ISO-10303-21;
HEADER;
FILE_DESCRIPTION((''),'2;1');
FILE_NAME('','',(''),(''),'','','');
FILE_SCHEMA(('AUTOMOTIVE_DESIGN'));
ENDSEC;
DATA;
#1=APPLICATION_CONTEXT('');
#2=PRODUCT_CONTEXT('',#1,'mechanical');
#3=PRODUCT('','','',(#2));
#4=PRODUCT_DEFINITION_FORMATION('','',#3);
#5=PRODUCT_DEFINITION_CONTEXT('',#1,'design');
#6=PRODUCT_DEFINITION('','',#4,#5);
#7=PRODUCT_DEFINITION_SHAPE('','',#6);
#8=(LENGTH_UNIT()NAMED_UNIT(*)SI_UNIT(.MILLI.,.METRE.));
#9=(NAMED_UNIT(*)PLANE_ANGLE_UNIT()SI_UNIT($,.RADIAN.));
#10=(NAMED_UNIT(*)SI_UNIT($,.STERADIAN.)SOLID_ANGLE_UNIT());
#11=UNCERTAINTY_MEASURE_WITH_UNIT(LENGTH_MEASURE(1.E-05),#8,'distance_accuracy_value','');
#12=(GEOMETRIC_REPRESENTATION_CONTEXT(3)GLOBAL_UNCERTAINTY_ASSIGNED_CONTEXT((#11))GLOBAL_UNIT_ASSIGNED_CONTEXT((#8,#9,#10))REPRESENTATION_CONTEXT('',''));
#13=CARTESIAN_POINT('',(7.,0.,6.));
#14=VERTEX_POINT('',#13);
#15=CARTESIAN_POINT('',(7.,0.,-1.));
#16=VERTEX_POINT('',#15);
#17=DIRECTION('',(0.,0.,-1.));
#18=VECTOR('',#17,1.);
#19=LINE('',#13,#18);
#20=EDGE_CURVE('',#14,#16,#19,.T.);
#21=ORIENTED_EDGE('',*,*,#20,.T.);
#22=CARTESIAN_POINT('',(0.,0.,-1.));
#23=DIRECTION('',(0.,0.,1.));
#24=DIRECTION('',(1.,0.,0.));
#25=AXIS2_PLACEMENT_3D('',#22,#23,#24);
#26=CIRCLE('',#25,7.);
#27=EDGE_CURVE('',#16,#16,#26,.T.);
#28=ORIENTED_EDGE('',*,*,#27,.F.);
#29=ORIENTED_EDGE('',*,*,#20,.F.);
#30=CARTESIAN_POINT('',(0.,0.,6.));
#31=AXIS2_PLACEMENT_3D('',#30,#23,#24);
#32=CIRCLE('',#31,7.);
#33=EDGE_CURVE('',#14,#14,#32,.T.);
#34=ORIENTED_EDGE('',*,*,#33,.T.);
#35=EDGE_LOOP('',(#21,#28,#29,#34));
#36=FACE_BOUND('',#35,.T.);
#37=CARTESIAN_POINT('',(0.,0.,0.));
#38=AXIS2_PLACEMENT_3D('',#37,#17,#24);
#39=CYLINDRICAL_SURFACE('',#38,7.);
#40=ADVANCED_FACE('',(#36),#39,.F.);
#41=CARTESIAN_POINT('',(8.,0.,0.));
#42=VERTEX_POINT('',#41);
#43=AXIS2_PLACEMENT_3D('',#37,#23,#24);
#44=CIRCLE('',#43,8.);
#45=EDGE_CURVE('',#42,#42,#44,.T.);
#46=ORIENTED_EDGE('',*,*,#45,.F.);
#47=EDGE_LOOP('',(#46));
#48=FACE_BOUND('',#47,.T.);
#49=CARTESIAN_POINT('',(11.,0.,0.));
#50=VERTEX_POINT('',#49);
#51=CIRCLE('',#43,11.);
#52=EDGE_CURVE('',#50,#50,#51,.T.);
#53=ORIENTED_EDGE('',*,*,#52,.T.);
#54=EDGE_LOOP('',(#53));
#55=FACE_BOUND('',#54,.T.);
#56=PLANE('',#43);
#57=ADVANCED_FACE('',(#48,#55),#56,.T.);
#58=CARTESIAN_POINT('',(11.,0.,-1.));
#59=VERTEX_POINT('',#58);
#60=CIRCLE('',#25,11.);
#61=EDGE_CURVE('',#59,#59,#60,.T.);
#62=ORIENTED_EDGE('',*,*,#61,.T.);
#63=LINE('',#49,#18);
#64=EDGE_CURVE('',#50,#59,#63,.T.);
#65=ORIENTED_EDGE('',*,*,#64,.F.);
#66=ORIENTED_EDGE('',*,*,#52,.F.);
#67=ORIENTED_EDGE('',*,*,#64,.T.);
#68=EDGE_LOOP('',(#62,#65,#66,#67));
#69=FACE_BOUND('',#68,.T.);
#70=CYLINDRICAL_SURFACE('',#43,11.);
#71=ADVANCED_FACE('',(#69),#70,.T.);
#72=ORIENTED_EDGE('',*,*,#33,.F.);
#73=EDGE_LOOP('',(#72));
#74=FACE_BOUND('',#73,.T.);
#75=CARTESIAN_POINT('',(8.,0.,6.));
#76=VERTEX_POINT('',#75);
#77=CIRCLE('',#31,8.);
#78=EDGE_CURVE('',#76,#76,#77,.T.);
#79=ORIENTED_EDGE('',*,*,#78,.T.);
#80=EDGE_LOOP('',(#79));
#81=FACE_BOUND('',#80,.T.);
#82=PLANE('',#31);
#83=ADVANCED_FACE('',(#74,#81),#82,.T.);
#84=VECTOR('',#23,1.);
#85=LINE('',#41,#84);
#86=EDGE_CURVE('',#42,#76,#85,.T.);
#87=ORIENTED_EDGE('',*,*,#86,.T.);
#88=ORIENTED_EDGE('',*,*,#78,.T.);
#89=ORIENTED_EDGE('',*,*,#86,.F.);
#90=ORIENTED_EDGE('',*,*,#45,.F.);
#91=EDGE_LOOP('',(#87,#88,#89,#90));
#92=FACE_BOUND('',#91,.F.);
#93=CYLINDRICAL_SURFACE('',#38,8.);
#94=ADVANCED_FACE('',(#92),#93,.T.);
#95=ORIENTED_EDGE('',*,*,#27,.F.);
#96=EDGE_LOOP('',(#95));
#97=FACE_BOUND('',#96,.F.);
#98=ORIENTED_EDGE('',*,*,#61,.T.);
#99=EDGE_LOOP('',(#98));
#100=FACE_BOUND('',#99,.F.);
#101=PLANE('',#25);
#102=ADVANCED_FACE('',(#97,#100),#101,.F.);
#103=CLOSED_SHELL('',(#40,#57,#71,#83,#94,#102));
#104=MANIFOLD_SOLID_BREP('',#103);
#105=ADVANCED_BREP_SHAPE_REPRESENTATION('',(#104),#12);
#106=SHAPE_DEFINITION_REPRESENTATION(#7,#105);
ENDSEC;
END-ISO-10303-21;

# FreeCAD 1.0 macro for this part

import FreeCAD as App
import Part
import Sketcher
from FreeCAD import Vector
Q = App.Units.Quantity

doc = App.newDocument("Part")
params = doc.addObject("Spreadsheet::Sheet", "Params")
for row, (alias, value) in enumerate([
    ("sketch1_diameter", "16 mm"),
    ("sketch1_diameter2", "14 mm"),
    ("pad1_length", "6 mm"),
    ("sketch2_diameter", "22 mm"),
    ("sketch2_diameter2", "14 mm"),
    ("pad2_length", "1 mm"),
], start=1):
    params.set(f"A{row}", alias)
    params.set(f"B{row}", "=" + value)
    params.setAlias(f"B{row}", alias)

body = doc.addObject("PartDesign::Body", "Body")

# Sketch on XY plane
sketch1 = body.newObject("Sketcher::SketchObject", "Sketch")
sketch1.AttachmentSupport = (doc.getObject("XY_Plane"), [""])
sketch1.MapMode = "FlatFace"
sketch1.addGeometry(Part.Circle(Vector(0, 0, 0), Vector(0, 0, 1), 8), False)
sketch1.addGeometry(Part.Circle(Vector(0, 0, 0), Vector(0, 0, 1), 7), False)
sketch1.addConstraint(Sketcher.Constraint("Coincident", 0, 3, -1, 1))
sketch1.addConstraint(Sketcher.Constraint("Coincident", 1, 3, -1, 1))
sketch1.addConstraint(Sketcher.Constraint("Diameter", 0, Q("16 mm")))
sketch1.addConstraint(Sketcher.Constraint("Diameter", 1, Q("14 mm")))
sketch1.setExpression("Constraints[2]", "Params.sketch1_diameter")
sketch1.setExpression("Constraints[3]", "Params.sketch1_diameter2")
pad1 = body.newObject("PartDesign::Pad", "Pad")
pad1.Profile = sketch1
pad1.setExpression("Length", "Params.pad1_length")

# Sketch on XY plane
sketch2 = body.newObject("Sketcher::SketchObject", "Sketch001")
sketch2.AttachmentSupport = (doc.getObject("XY_Plane"), [""])
sketch2.MapMode = "FlatFace"
sketch2.addGeometry(Part.Circle(Vector(0, 0, 0), Vector(0, 0, 1), 11), False)
sketch2.addGeometry(Part.Circle(Vector(0, 0, 0), Vector(0, 0, 1), 7), False)
sketch2.addConstraint(Sketcher.Constraint("Coincident", 0, 3, -1, 1))
sketch2.addConstraint(Sketcher.Constraint("Coincident", 1, 3, -1, 1))
sketch2.addConstraint(Sketcher.Constraint("Diameter", 0, Q("22 mm")))
sketch2.addConstraint(Sketcher.Constraint("Diameter", 1, Q("14 mm")))
sketch2.setExpression("Constraints[2]", "Params.sketch2_diameter")
sketch2.setExpression("Constraints[3]", "Params.sketch2_diameter2")
pad2 = body.newObject("PartDesign::Pad", "Pad001")
pad2.Profile = sketch2
pad2.setExpression("Length", "Params.pad2_length")
pad2.Reversed = True

doc.recompute()
